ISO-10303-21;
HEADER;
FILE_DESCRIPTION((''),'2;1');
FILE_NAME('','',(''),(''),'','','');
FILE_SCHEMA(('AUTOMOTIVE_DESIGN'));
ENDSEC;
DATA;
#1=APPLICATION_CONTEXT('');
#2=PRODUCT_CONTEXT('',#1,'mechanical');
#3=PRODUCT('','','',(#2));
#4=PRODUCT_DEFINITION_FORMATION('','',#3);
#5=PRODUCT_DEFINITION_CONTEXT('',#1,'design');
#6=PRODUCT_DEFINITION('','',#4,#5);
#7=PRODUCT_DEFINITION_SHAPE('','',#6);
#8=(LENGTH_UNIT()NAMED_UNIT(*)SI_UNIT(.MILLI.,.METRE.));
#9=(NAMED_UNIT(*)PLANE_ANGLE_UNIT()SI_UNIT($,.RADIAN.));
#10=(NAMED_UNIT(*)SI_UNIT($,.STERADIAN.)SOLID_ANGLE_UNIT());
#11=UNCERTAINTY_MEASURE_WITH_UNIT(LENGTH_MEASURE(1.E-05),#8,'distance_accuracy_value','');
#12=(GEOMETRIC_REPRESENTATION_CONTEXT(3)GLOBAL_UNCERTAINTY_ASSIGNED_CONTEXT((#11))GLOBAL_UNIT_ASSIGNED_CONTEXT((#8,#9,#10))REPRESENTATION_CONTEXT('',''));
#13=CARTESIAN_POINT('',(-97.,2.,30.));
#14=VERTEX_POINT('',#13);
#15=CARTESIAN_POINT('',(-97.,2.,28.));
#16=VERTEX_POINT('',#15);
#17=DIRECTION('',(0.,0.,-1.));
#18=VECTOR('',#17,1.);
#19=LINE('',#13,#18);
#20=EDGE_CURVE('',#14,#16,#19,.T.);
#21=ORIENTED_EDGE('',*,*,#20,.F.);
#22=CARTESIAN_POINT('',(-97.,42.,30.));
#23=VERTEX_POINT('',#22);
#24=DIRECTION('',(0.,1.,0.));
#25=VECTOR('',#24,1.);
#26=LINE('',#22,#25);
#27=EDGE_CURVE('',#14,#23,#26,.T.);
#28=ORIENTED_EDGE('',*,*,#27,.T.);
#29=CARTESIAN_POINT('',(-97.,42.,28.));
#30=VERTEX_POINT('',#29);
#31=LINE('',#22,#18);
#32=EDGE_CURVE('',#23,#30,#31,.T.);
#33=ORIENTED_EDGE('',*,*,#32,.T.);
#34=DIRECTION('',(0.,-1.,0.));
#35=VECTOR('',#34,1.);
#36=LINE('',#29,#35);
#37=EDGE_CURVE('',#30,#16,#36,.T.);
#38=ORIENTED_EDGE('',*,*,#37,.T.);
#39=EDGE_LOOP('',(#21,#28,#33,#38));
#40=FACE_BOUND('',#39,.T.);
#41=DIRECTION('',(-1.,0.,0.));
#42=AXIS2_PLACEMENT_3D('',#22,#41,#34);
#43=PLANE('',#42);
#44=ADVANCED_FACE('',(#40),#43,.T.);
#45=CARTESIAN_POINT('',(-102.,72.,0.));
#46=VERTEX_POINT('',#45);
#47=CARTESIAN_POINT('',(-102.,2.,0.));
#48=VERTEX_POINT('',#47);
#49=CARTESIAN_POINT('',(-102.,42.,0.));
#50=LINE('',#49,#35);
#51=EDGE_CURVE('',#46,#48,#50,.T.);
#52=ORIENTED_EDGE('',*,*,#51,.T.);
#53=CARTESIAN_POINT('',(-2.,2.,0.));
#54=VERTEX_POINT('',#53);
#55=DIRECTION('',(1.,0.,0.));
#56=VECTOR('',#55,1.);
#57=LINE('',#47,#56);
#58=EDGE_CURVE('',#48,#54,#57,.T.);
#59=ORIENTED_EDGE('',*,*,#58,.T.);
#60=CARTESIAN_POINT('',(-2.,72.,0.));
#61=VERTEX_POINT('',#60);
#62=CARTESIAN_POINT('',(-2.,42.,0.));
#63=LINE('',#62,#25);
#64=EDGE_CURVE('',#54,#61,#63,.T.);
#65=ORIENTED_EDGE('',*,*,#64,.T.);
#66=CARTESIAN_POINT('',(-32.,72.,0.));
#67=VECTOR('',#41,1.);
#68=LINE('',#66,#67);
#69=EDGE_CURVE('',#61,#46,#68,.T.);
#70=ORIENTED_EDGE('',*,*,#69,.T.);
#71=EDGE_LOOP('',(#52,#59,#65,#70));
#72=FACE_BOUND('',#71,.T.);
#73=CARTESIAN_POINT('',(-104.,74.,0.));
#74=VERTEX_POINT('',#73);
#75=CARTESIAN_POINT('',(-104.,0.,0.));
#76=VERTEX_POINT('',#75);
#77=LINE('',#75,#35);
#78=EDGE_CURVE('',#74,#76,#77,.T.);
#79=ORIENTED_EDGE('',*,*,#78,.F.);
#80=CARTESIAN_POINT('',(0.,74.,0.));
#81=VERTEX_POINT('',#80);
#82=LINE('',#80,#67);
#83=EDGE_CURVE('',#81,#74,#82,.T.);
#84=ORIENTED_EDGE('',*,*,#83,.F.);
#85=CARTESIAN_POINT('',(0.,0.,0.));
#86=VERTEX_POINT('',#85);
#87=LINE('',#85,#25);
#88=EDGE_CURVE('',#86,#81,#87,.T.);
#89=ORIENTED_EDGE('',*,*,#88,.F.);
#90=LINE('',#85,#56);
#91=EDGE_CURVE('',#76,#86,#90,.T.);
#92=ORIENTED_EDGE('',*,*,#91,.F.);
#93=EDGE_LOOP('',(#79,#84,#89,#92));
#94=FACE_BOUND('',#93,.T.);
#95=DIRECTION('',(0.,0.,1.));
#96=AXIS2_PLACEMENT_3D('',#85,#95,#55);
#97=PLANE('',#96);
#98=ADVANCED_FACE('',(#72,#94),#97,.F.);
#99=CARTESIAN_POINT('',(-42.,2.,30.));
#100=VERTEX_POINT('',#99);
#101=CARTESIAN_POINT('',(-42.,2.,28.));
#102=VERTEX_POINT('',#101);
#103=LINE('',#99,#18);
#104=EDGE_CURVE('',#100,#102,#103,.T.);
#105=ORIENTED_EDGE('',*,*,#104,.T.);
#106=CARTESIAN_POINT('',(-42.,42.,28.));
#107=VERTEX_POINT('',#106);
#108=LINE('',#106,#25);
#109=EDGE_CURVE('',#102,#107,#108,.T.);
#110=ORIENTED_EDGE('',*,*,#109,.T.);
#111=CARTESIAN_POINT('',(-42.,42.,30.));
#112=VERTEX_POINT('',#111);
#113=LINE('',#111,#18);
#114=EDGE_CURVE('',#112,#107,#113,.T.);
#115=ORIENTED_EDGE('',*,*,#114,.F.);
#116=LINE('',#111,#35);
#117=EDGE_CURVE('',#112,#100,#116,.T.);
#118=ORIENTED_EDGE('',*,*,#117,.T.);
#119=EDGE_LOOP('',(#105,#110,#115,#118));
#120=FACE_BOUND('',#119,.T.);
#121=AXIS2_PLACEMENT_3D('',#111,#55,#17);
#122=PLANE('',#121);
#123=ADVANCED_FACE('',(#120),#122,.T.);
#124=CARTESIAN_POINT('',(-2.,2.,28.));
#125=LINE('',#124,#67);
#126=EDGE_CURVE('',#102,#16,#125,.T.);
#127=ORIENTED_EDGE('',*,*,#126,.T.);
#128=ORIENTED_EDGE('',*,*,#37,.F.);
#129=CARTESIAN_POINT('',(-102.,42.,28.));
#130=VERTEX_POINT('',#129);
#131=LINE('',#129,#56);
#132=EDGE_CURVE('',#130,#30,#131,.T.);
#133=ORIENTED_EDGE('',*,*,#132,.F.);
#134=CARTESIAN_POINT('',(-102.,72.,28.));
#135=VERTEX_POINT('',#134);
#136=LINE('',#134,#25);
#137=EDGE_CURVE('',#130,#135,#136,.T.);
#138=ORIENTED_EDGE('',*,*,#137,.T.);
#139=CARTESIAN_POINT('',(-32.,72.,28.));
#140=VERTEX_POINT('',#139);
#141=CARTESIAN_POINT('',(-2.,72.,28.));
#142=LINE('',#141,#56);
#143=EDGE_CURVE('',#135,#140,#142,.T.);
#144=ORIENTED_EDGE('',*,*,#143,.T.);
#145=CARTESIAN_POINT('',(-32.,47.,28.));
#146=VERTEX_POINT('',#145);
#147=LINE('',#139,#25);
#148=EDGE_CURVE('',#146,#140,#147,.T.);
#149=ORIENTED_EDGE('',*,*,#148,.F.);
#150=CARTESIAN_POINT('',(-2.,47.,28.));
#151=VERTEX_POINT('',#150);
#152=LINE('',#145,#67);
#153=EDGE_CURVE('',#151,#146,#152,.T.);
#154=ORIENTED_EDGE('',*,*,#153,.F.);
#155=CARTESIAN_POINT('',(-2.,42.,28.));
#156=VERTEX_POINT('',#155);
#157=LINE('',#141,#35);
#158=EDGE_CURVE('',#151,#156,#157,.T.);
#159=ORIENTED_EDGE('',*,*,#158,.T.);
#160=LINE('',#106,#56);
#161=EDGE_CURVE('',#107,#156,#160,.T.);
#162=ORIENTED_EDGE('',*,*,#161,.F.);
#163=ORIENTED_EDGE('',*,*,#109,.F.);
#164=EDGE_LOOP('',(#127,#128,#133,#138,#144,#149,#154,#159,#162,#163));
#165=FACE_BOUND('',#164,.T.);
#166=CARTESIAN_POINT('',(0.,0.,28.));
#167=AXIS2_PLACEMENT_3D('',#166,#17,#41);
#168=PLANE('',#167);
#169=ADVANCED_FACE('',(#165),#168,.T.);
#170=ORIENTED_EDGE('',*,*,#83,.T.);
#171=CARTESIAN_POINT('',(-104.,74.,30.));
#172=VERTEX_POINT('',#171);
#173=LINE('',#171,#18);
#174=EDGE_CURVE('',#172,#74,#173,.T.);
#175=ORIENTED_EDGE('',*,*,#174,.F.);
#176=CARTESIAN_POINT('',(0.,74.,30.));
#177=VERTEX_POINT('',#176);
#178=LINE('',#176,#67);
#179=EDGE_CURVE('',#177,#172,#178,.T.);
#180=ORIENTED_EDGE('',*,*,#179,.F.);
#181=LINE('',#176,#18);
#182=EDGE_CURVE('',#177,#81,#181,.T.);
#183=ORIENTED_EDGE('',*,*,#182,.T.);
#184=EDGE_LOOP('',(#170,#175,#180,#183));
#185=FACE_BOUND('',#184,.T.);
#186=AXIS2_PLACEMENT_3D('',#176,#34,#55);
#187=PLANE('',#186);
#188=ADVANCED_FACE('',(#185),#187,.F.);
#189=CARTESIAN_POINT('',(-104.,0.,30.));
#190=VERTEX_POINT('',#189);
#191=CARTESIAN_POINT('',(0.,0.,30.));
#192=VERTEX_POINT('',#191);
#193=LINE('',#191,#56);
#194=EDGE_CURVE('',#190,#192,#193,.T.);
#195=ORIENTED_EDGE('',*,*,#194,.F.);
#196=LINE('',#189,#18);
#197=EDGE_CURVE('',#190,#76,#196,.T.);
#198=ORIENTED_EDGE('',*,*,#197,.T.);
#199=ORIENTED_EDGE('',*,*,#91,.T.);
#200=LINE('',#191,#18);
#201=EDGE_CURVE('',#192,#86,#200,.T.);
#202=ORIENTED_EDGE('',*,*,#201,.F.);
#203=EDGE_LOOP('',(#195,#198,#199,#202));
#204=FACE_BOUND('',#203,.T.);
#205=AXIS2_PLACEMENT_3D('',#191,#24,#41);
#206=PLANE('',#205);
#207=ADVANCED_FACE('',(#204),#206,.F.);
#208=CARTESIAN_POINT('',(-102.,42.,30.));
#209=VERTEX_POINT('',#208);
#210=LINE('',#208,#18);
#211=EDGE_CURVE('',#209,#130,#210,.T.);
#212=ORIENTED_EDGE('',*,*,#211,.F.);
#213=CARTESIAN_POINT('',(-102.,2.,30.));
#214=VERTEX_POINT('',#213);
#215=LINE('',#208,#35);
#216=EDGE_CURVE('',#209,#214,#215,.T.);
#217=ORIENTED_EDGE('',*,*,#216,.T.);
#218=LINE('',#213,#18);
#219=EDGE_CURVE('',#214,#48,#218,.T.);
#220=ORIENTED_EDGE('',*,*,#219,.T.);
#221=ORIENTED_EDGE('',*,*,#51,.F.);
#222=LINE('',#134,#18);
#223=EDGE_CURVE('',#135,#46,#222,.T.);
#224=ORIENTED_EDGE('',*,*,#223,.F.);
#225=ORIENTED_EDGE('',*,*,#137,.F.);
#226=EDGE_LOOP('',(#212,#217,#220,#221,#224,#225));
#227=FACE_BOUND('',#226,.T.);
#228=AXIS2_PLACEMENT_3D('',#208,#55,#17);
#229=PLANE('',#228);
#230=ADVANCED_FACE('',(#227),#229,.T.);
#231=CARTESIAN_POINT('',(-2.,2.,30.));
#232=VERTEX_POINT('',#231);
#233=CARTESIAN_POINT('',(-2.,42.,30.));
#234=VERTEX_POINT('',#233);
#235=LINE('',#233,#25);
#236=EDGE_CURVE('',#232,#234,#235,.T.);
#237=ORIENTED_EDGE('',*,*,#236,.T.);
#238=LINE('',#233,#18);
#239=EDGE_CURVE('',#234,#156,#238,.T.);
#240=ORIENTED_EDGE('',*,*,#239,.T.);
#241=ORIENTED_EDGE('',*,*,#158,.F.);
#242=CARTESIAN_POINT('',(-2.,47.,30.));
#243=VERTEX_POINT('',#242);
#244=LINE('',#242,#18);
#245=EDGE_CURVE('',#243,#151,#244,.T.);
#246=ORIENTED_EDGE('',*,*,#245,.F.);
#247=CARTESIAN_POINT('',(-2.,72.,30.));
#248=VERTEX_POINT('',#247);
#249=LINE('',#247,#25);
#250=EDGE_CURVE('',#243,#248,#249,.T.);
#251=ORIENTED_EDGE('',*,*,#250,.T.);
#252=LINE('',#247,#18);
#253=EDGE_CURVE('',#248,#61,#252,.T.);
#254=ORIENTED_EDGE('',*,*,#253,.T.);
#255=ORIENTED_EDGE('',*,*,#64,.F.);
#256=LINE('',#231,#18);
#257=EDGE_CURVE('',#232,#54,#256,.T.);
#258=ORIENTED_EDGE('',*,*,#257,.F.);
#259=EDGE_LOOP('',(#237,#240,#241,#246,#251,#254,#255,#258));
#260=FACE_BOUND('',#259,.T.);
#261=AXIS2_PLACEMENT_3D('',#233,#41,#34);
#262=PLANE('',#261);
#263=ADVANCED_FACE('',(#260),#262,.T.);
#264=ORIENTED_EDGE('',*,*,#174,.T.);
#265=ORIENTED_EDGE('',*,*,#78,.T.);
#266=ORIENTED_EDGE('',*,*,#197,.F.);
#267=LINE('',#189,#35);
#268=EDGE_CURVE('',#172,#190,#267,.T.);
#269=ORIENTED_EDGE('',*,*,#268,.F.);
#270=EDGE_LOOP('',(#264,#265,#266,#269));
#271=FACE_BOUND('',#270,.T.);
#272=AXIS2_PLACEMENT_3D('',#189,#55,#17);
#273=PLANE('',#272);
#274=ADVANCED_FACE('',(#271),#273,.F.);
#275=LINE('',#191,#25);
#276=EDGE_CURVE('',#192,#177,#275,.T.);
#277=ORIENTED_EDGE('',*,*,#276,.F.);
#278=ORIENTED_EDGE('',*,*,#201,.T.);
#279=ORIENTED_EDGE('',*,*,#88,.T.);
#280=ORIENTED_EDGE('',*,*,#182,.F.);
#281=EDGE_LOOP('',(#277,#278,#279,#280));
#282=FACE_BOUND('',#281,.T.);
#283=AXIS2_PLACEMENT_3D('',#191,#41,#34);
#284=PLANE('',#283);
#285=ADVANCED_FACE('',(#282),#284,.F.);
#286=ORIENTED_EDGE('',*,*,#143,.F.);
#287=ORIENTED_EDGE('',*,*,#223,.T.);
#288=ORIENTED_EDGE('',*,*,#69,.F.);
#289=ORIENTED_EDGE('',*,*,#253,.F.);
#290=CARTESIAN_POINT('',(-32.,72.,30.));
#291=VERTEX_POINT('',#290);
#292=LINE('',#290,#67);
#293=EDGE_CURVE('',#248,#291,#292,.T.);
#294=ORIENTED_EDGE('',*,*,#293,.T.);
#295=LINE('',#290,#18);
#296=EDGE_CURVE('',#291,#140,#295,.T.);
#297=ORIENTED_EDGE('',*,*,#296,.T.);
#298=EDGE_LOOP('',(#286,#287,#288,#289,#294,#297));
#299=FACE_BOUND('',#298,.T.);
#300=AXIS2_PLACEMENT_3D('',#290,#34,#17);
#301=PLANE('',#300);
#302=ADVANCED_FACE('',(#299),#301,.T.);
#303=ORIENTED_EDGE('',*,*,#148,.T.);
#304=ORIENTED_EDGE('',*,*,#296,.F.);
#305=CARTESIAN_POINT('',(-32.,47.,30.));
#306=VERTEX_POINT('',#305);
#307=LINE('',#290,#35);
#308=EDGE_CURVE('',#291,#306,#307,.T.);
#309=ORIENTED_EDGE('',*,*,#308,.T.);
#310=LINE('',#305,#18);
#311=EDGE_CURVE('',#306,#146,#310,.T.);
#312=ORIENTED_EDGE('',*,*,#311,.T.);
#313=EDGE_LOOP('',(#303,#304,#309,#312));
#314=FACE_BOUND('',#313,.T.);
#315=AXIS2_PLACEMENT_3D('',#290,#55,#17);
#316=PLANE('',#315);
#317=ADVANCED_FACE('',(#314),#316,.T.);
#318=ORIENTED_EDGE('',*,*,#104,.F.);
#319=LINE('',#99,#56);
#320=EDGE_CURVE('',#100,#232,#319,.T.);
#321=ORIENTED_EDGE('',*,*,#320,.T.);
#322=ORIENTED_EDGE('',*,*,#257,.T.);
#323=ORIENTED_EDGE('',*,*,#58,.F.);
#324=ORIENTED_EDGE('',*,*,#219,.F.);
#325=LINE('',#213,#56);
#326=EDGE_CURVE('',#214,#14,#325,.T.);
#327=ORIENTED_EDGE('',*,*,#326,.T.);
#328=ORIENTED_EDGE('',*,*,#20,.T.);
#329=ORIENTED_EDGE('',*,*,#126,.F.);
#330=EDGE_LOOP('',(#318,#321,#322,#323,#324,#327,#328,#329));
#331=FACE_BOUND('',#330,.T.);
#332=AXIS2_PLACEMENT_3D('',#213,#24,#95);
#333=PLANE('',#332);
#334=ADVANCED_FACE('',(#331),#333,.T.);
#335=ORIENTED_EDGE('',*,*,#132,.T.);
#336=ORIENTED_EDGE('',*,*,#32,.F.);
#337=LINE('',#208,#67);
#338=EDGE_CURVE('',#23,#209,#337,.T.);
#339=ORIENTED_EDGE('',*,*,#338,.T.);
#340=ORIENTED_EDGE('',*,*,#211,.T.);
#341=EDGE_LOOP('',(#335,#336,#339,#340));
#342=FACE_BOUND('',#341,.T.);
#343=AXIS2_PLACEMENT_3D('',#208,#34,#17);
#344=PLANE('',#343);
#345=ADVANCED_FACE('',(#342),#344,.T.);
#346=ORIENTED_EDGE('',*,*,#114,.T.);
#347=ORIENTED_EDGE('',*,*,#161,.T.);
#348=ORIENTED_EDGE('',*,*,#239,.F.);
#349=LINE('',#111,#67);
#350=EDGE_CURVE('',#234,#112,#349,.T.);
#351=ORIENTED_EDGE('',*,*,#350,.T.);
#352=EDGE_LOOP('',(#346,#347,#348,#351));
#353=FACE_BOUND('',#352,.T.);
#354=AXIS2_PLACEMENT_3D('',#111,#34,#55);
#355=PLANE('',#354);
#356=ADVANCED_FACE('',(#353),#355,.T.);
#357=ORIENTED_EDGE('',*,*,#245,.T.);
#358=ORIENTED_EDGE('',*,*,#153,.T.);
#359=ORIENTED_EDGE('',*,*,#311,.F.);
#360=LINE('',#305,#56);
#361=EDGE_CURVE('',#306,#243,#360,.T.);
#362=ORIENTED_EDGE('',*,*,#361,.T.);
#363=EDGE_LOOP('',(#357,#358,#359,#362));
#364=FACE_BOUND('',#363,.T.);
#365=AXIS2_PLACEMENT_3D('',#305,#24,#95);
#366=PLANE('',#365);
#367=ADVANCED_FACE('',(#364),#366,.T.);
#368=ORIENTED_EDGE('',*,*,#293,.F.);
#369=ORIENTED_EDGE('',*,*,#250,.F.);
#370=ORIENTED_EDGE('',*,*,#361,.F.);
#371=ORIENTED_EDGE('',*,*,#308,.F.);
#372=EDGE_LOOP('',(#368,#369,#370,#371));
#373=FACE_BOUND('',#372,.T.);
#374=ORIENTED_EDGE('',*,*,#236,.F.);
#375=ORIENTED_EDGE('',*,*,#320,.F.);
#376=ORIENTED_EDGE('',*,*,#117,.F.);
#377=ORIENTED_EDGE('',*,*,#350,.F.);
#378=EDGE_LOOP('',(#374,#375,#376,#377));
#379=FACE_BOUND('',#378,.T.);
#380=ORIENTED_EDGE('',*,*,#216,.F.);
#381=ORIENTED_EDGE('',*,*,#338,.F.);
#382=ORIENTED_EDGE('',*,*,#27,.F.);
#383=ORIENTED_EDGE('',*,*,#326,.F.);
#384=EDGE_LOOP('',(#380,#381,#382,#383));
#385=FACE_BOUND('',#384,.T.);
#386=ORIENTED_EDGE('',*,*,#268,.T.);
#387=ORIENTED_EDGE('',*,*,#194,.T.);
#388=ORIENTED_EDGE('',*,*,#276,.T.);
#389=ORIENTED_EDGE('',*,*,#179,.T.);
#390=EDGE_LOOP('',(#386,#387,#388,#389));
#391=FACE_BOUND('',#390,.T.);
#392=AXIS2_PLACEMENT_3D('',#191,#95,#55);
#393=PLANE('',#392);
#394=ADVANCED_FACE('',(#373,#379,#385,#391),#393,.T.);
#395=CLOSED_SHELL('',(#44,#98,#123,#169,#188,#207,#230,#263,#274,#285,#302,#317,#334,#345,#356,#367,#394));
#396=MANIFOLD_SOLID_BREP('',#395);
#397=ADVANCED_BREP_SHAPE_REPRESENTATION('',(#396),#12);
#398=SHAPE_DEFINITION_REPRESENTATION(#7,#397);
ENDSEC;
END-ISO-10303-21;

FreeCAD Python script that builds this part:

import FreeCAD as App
import Part
import Sketcher
from FreeCAD import Vector
Q = App.Units.Quantity


def add_polygon(sketch, points):
    """Adds a closed chain of lines whose ends are joined by coincident constraints."""
    first, n = sketch.GeometryCount, len(points)
    for a, b in zip(points, points[1:] + points[:1]):
        sketch.addGeometry(Part.LineSegment(App.Vector(*a, 0), App.Vector(*b, 0)), False)
    for i in range(n):
        sketch.addConstraint(Sketcher.Constraint("Coincident", first + i, 2, first + (i + 1) % n, 1))

doc = App.newDocument("Part")
body = doc.addObject("PartDesign::Body", "Body")

# Sketch on XY plane
sketch1 = doc.addObject("Sketcher::SketchObject", "Sketch")
body.addObject(sketch1)
sketch1.AttachmentSupport = (doc.XY_Plane, [""])
sketch1.MapMode = "FlatFace"
add_polygon(sketch1, [(-104, 74), (-104, 0), (0, 0), (0, 74)])  # lines 0-3
add_polygon(sketch1, [(-97, 2), (-102, 2), (-102, 42), (-97, 42)])  # lines 4-7
add_polygon(sketch1, [(-2, 2), (-42, 2), (-42, 42), (-2, 42)])  # lines 8-11
add_polygon(sketch1, [(-2, 47), (-32, 47), (-32, 72), (-2, 72)])  # lines 12-15
sketch1.addConstraint(Sketcher.Constraint("Vertical", 0))
sketch1.addConstraint(Sketcher.Constraint("Horizontal", 1))
sketch1.addConstraint(Sketcher.Constraint("Vertical", 2))
sketch1.addConstraint(Sketcher.Constraint("Horizontal", 3))
sketch1.addConstraint(Sketcher.Constraint("Horizontal", 4))
sketch1.addConstraint(Sketcher.Constraint("Vertical", 5))
sketch1.addConstraint(Sketcher.Constraint("Horizontal", 6))
sketch1.addConstraint(Sketcher.Constraint("Vertical", 7))
sketch1.addConstraint(Sketcher.Constraint("Horizontal", 8))
sketch1.addConstraint(Sketcher.Constraint("Vertical", 9))
sketch1.addConstraint(Sketcher.Constraint("Horizontal", 10))
sketch1.addConstraint(Sketcher.Constraint("Vertical", 11))
sketch1.addConstraint(Sketcher.Constraint("Horizontal", 12))
sketch1.addConstraint(Sketcher.Constraint("Vertical", 13))
sketch1.addConstraint(Sketcher.Constraint("Horizontal", 14))
sketch1.addConstraint(Sketcher.Constraint("Vertical", 15))
sketch1.addConstraint(Sketcher.Constraint("Coincident", 1, 2, -1, 1))
sketch1.addConstraint(Sketcher.Constraint("Horizontal", 7, 2, 8, 2))
sketch1.addConstraint(Sketcher.Constraint("Horizontal", 6, 2, 9, 2))
sketch1.addConstraint(Sketcher.Constraint("Vertical", 11, 2, 14, 2))
sketch1.addConstraint(Sketcher.Constraint("Equal", 10, 5))
sketch1.addConstraint(Sketcher.Constraint("DistanceX", 1, 1, 1, 2, Q("104 mm")))
sketch1.addConstraint(Sketcher.Constraint("DistanceX", 4, 2, 4, 1, Q("5 mm")))
sketch1.addConstraint(Sketcher.Constraint("DistanceX", 8, 2, 8, 1, Q("40 mm")))
sketch1.addConstraint(Sketcher.Constraint("DistanceX", 12, 2, 12, 1, Q("30 mm")))
sketch1.addConstraint(Sketcher.Constraint("DistanceY", 0, 2, 0, 1, Q("74 mm")))
sketch1.addConstraint(Sketcher.Constraint("DistanceY", 13, 1, 13, 2, Q("25 mm")))
sketch1.addConstraint(Sketcher.Constraint("DistanceX", 4, 2, -1, 1, Q("102 mm")))
sketch1.addConstraint(Sketcher.Constraint("DistanceY", -1, 1, 4, 2, Q("2 mm")))
sketch1.addConstraint(Sketcher.Constraint("DistanceX", 8, 2, -1, 1, Q("42 mm")))
sketch1.addConstraint(Sketcher.Constraint("DistanceY", -1, 1, 12, 2, Q("47 mm")))
pad1 = doc.addObject("PartDesign::Pad", "Pad")
body.addObject(pad1)
pad1.Profile = sketch1
pad1.Length = 30

# Sketch on XY plane
sketch2 = doc.addObject("Sketcher::SketchObject", "Sketch001")
body.addObject(sketch2)
sketch2.AttachmentSupport = (doc.XY_Plane, [""])
sketch2.MapMode = "FlatFace"
add_polygon(sketch2, [(-2, 72), (-2, 2), (-102, 2), (-102, 72)])  # lines 0-3
sketch2.addConstraint(Sketcher.Constraint("Vertical", 0))
sketch2.addConstraint(Sketcher.Constraint("Horizontal", 1))
sketch2.addConstraint(Sketcher.Constraint("Vertical", 2))
sketch2.addConstraint(Sketcher.Constraint("Horizontal", 3))
sketch2.addConstraint(Sketcher.Constraint("DistanceX", 1, 2, 1, 1, Q("100 mm")))
sketch2.addConstraint(Sketcher.Constraint("DistanceY", 0, 2, 0, 1, Q("70 mm")))
sketch2.addConstraint(Sketcher.Constraint("DistanceX", 0, 2, -1, 1, Q("2 mm")))
sketch2.addConstraint(Sketcher.Constraint("DistanceY", -1, 1, 0, 2, Q("2 mm")))
pocket1 = doc.addObject("PartDesign::Pocket", "Pocket")
body.addObject(pocket1)
pocket1.Profile = sketch2
pocket1.Length = 28
pocket1.Reversed = True

doc.recompute()
